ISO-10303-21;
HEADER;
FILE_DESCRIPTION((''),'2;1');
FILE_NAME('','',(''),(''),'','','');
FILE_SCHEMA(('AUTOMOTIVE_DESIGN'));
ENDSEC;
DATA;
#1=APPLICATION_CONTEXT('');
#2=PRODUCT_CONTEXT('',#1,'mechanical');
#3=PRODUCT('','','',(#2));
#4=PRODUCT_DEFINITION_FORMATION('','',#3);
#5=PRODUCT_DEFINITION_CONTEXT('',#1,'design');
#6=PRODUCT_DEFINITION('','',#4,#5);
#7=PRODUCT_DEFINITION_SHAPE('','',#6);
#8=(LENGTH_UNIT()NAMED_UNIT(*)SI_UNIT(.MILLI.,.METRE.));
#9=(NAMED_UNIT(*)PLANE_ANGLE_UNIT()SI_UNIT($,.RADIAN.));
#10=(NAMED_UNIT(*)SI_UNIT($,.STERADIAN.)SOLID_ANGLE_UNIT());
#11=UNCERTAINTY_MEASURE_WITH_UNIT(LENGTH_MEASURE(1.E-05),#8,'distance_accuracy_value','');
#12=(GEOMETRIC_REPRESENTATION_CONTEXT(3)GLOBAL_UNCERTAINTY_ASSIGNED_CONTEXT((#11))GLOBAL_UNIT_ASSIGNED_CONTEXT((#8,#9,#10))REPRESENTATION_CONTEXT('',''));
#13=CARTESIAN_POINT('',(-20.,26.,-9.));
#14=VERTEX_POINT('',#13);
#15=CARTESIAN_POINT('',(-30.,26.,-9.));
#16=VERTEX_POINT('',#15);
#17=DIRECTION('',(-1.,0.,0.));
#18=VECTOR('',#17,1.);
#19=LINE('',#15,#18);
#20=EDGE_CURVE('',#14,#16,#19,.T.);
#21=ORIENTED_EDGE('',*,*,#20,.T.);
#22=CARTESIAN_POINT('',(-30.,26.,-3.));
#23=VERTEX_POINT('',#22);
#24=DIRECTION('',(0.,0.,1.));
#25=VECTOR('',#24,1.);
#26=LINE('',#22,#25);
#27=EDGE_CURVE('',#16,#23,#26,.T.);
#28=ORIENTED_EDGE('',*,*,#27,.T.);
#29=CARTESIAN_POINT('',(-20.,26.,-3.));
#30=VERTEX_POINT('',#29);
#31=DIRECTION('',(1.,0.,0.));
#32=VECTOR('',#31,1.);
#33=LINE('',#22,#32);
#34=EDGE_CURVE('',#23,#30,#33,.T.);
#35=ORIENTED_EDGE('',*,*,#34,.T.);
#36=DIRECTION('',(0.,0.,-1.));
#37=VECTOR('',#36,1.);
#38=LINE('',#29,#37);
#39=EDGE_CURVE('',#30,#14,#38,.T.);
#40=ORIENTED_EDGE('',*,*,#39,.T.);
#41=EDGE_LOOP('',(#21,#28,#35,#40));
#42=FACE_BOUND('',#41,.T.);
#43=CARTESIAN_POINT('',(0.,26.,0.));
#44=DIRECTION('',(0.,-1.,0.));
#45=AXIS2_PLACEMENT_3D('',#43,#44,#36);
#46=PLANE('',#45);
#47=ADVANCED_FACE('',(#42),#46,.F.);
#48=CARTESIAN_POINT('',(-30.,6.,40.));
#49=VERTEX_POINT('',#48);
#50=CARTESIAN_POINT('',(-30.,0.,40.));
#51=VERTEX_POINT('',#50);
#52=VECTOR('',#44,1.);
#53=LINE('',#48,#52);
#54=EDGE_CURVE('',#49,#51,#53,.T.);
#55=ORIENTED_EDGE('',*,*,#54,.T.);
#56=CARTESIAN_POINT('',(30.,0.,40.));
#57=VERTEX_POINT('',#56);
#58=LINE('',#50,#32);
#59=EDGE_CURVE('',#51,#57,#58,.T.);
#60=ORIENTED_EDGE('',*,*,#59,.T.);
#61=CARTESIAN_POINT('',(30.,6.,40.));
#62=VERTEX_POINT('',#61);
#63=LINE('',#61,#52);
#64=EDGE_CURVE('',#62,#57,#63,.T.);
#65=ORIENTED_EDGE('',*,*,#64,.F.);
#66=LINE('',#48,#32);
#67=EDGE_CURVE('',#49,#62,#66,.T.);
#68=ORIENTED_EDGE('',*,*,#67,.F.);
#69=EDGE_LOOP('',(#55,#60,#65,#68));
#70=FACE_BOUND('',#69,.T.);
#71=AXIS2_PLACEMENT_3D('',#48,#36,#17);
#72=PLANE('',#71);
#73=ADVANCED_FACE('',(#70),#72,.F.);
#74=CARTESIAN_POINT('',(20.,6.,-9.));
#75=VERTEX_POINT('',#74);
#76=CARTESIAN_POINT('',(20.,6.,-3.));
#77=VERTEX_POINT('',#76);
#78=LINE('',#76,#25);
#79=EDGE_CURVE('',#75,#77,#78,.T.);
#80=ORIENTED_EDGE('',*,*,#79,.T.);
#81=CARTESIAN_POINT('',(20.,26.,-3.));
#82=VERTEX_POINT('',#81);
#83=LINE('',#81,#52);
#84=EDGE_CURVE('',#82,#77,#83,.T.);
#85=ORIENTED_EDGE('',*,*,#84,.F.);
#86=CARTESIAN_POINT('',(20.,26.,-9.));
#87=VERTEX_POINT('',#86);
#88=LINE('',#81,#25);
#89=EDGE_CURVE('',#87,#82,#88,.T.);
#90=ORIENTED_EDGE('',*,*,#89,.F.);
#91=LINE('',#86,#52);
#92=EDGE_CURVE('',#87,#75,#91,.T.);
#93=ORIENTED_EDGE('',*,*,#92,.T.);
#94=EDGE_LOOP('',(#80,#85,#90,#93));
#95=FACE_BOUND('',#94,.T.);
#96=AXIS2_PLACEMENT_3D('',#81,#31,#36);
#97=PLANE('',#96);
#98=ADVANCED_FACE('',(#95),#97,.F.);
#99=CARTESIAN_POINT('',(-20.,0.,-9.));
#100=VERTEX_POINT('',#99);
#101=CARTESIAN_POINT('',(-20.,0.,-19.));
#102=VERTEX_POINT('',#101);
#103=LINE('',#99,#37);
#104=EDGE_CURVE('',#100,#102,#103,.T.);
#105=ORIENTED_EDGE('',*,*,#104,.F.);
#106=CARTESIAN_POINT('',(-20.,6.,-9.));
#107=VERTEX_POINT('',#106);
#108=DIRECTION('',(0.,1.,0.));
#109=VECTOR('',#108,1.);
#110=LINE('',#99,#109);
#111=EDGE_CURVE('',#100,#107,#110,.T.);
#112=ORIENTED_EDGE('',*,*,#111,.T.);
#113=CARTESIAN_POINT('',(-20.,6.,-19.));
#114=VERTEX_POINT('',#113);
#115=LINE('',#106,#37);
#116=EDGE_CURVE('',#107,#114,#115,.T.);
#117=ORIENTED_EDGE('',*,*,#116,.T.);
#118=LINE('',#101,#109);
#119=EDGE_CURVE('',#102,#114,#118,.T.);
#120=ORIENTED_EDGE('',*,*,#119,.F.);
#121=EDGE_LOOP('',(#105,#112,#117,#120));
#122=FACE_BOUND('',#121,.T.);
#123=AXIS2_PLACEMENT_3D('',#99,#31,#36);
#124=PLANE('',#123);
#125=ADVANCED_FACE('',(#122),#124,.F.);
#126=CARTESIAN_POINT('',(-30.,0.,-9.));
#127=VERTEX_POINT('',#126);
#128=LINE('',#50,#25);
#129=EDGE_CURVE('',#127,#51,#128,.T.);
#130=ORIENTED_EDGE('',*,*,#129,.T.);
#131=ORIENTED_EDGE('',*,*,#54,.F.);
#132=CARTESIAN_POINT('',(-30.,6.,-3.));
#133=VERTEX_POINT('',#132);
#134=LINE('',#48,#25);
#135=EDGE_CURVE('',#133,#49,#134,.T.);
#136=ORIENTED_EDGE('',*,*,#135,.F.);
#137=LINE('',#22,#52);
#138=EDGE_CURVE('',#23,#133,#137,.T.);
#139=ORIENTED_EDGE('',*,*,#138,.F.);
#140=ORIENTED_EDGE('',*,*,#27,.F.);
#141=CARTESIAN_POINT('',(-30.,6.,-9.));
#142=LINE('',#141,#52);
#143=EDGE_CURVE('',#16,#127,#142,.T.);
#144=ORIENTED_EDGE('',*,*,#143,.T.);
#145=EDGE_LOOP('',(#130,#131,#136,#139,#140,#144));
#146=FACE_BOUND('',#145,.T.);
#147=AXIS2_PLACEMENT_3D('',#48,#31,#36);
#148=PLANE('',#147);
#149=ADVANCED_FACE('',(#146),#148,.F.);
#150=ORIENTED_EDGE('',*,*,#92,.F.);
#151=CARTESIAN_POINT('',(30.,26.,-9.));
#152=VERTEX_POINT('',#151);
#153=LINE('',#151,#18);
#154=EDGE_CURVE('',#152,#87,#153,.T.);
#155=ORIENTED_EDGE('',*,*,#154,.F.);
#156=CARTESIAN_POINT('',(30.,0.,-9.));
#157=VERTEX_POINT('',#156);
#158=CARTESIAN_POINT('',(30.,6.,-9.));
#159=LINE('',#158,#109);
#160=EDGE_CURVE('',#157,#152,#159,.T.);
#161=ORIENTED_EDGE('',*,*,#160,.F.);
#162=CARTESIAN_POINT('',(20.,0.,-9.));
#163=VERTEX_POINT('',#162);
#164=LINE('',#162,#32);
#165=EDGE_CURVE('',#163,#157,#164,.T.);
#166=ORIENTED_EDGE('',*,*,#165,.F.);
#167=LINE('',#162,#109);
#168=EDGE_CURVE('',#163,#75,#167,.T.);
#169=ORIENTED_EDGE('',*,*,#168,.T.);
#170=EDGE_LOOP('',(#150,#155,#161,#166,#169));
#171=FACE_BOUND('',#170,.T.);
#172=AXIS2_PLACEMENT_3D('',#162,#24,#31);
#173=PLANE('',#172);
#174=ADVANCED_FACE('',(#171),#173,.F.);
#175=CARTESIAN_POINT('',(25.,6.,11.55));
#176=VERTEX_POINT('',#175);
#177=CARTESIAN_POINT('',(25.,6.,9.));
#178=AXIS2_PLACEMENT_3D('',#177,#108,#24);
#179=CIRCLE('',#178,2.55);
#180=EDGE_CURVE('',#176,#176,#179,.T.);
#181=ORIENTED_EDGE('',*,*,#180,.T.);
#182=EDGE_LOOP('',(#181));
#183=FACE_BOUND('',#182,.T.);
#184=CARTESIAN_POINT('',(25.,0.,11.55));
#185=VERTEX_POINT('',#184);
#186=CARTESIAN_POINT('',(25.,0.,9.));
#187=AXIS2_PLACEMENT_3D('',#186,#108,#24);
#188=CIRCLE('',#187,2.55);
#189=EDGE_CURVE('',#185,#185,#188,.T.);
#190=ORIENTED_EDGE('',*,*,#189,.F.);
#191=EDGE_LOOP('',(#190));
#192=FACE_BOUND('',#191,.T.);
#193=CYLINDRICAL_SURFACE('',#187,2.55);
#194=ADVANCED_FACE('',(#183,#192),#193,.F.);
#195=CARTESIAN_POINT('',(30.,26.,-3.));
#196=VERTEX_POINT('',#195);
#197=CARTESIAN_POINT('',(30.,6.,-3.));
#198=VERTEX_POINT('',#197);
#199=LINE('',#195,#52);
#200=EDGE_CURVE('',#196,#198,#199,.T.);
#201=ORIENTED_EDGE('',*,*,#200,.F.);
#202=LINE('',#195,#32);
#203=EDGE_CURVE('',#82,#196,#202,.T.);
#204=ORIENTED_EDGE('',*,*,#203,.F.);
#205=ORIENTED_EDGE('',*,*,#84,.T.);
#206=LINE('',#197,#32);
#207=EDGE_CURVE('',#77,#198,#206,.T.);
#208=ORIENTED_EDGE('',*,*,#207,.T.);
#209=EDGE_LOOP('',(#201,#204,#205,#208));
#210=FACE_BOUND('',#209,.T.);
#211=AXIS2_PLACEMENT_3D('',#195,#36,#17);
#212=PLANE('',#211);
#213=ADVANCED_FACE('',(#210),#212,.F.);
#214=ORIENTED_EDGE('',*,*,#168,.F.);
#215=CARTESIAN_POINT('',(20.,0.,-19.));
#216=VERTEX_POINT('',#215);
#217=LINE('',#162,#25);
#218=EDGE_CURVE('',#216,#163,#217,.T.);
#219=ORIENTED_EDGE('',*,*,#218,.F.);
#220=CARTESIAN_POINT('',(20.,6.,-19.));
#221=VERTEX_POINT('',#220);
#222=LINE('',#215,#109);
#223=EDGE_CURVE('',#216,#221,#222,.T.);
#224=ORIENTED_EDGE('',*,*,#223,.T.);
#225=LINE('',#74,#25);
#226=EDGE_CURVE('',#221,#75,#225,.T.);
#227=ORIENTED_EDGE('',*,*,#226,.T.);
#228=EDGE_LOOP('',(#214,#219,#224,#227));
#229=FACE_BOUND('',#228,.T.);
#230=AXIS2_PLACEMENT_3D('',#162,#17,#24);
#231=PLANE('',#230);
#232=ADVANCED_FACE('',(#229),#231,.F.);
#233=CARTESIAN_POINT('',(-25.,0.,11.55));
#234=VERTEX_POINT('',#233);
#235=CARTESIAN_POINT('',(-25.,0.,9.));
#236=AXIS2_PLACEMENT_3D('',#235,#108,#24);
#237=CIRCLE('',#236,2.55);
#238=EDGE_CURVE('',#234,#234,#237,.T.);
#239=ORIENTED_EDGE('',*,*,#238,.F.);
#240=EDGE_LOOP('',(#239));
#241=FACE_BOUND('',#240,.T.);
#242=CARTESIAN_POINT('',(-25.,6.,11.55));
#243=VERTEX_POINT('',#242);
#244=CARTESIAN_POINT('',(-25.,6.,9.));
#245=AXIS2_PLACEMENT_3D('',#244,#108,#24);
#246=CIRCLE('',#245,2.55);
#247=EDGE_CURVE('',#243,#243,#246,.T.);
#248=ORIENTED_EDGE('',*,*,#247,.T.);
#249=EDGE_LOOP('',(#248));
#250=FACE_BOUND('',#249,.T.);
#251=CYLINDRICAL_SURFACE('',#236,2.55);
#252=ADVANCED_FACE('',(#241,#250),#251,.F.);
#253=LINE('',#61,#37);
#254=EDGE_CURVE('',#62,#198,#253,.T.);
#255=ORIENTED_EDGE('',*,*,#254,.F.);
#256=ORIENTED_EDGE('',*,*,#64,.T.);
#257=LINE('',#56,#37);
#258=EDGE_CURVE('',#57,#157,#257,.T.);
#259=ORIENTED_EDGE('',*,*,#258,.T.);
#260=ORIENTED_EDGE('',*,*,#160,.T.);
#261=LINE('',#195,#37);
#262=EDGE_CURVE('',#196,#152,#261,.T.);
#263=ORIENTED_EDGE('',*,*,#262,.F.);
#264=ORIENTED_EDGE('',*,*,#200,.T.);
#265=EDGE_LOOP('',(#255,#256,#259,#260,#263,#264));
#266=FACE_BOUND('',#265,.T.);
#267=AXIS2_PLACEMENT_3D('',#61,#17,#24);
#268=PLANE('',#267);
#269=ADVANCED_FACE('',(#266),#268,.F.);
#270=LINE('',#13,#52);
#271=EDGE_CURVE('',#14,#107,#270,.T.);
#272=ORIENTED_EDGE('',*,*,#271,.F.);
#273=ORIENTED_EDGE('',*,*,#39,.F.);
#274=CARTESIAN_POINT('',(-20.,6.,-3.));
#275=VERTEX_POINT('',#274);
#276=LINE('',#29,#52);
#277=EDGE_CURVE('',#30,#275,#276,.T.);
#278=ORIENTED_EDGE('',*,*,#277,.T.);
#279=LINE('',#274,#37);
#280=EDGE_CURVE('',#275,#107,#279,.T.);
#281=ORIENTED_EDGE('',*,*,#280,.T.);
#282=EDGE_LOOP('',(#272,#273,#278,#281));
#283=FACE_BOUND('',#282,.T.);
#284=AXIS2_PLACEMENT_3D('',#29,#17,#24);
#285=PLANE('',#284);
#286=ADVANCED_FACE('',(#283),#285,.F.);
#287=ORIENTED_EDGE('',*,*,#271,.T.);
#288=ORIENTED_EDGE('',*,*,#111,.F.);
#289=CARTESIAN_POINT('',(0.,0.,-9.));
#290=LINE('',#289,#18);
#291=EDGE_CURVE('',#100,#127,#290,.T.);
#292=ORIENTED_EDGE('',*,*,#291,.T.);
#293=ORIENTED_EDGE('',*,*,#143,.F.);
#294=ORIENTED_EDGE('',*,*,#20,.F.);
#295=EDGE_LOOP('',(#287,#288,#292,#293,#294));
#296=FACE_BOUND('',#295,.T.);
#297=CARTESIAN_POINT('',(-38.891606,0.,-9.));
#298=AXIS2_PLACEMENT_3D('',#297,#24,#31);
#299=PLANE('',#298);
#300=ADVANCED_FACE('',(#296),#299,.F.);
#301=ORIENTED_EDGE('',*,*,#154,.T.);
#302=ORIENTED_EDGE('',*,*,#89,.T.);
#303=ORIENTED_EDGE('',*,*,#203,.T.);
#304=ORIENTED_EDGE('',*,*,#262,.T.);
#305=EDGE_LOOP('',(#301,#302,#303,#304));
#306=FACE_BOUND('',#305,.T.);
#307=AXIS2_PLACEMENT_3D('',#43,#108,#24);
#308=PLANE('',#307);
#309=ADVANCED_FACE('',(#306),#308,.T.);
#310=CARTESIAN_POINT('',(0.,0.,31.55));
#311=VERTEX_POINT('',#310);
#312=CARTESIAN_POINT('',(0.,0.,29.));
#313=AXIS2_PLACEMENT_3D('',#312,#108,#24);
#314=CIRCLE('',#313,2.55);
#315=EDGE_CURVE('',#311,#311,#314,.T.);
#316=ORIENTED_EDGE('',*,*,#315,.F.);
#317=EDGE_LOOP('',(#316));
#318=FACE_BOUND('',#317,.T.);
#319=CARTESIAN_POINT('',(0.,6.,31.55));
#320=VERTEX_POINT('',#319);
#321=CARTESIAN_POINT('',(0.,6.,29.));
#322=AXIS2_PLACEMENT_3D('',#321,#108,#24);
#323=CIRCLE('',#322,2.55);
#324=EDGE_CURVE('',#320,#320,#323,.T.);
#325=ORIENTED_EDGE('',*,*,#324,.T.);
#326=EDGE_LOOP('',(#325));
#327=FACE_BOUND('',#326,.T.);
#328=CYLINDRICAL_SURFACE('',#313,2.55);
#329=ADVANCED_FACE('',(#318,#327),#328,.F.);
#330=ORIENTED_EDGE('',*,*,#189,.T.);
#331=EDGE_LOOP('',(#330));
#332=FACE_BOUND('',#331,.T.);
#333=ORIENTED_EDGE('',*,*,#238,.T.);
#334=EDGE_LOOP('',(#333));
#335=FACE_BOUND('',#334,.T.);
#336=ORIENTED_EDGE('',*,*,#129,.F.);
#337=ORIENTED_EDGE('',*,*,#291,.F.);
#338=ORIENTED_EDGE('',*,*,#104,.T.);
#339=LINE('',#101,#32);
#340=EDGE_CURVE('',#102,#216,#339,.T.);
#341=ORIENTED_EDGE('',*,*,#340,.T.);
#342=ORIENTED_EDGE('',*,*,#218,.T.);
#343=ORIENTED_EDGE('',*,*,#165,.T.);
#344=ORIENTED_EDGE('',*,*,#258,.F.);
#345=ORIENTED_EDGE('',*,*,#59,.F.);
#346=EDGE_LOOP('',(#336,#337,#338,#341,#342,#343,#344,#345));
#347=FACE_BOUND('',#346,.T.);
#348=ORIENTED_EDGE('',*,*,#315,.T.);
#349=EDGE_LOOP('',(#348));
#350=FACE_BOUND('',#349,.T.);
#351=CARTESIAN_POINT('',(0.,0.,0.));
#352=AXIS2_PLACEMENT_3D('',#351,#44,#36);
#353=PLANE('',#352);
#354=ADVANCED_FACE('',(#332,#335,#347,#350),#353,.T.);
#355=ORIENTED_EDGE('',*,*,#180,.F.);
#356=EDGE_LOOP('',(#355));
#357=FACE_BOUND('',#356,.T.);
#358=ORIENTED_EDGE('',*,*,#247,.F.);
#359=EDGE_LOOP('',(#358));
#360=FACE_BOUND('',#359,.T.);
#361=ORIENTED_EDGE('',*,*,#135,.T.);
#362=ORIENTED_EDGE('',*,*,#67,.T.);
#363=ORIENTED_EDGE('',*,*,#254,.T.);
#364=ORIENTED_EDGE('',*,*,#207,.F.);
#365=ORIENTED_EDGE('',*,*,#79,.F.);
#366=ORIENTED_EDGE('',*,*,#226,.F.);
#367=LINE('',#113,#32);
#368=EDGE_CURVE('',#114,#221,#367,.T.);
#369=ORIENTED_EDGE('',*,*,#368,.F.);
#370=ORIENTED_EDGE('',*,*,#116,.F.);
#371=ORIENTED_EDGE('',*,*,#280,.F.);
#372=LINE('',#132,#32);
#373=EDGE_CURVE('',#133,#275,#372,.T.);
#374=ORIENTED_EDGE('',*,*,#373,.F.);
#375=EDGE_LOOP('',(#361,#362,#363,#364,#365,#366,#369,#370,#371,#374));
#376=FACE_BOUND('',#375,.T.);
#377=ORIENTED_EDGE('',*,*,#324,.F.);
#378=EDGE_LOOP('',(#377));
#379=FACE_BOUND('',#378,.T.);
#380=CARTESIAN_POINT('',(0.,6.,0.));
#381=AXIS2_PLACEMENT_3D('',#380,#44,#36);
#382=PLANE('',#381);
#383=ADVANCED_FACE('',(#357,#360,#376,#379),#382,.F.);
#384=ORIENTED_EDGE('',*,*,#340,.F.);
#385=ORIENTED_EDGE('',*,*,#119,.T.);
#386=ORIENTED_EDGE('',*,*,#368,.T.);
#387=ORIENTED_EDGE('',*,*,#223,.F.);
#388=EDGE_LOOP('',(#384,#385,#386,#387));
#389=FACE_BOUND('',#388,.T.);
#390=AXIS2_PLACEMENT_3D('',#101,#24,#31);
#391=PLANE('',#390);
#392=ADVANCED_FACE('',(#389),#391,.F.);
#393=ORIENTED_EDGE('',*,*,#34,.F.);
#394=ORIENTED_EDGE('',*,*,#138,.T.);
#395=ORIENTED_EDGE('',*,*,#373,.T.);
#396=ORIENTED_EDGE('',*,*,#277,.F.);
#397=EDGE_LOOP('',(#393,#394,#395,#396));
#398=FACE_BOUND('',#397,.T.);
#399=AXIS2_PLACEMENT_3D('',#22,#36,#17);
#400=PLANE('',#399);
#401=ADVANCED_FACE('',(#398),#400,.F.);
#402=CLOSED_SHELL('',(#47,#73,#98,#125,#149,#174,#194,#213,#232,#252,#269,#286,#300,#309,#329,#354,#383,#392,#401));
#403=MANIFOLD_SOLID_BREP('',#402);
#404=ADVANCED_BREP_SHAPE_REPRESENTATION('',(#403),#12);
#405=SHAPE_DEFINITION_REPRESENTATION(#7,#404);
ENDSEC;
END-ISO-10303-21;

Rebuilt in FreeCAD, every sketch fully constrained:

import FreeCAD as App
import Part
import Sketcher
from FreeCAD import Vector
Q = App.Units.Quantity

doc = App.newDocument("Part")
body = doc.addObject("PartDesign::Body", "Body")

sketch1 = body.newObject("Sketcher::SketchObject", "Sketch")
sketch1.AttachmentSupport = (doc.getObject("XZ_Plane"), [""])
sketch1.MapMode = "FlatFace"
sketch1.addGeometry(Part.LineSegment(Vector(-30, -40, 0), Vector(-30, 40, 0)), False)
sketch1.addGeometry(Part.LineSegment(Vector(-30, 40, 0), Vector(30, 40, 0)), False)
sketch1.addGeometry(Part.LineSegment(Vector(30, 40, 0), Vector(30, -40, 0)), False)
sketch1.addGeometry(Part.LineSegment(Vector(30, -40, 0), Vector(-30, -40, 0)), False)
sketch1.addConstraint(Sketcher.Constraint("Coincident", 0, 2, 1, 1))
sketch1.addConstraint(Sketcher.Constraint("Coincident", 1, 2, 2, 1))
sketch1.addConstraint(Sketcher.Constraint("Coincident", 2, 2, 3, 1))
sketch1.addConstraint(Sketcher.Constraint("Coincident", 3, 2, 0, 1))
sketch1.addConstraint(Sketcher.Constraint("Vertical", 0))
sketch1.addConstraint(Sketcher.Constraint("Horizontal", 1))
sketch1.addConstraint(Sketcher.Constraint("Vertical", 2))
sketch1.addConstraint(Sketcher.Constraint("Horizontal", 3))
sketch1.addConstraint(Sketcher.Constraint("Symmetric", 0, 2, 2, 2, -1, 1))
sketch1.addConstraint(Sketcher.Constraint("DistanceX", 1, 1, 1, 2, Q("60 mm")))
sketch1.addConstraint(Sketcher.Constraint("DistanceY", 0, 1, 0, 2, Q("80 mm")))
pad1 = body.newObject("PartDesign::Pad", "Pad")
pad1.Profile = sketch1
pad1.Length = 6
pad1.Reversed = True

sketch2 = body.newObject("Sketcher::SketchObject", "Sketch001")
sketch2.AttachmentSupport = (doc.getObject("XZ_Plane"), [""])
sketch2.MapMode = "FlatFace"
sketch2.AttachmentOffset = App.Placement(Vector(0, 0, -6), App.Rotation())
sketch2.addGeometry(Part.Circle(Vector(25, 9, 0), Vector(0, 0, 1), 2.5), False)
sketch2.addGeometry(Part.Circle(Vector(-25, 9, 0), Vector(0, 0, 1), 2.5), False)
sketch2.addGeometry(Part.Circle(Vector(0, 29, 0), Vector(0, 0, 1), 2.5), False)
sketch2.addGeometry(Part.LineSegment(Vector(-38.9, -9, 0), Vector(-20, -9, 0)), False)
sketch2.addGeometry(Part.LineSegment(Vector(-20, -9, 0), Vector(-20, -19, 0)), False)
sketch2.addGeometry(Part.LineSegment(Vector(-20, -19, 0), Vector(20, -19, 0)), False)
sketch2.addGeometry(Part.LineSegment(Vector(20, -19, 0), Vector(20, -9, 0)), False)
sketch2.addGeometry(Part.LineSegment(Vector(20, -9, 0), Vector(37.9, -9, 0)), False)
sketch2.addGeometry(Part.LineSegment(Vector(37.9, -9, 0), Vector(37.9, -57.3, 0)), False)
sketch2.addGeometry(Part.LineSegment(Vector(37.9, -57.3, 0), Vector(-38.9, -57.3, 0)), False)
sketch2.addGeometry(Part.LineSegment(Vector(-38.9, -57.3, 0), Vector(-38.9, -9, 0)), False)
sketch2.addConstraint(Sketcher.Constraint("Coincident", 3, 2, 4, 1))
sketch2.addConstraint(Sketcher.Constraint("Coincident", 4, 2, 5, 1))
sketch2.addConstraint(Sketcher.Constraint("Coincident", 5, 2, 6, 1))
sketch2.addConstraint(Sketcher.Constraint("Coincident", 6, 2, 7, 1))
sketch2.addConstraint(Sketcher.Constraint("Coincident", 7, 2, 8, 1))
sketch2.addConstraint(Sketcher.Constraint("Coincident", 8, 2, 9, 1))
sketch2.addConstraint(Sketcher.Constraint("Coincident", 9, 2, 10, 1))
sketch2.addConstraint(Sketcher.Constraint("Coincident", 10, 2, 3, 1))
sketch2.addConstraint(Sketcher.Constraint("Horizontal", 3))
sketch2.addConstraint(Sketcher.Constraint("Vertical", 4))
sketch2.addConstraint(Sketcher.Constraint("Horizontal", 5))
sketch2.addConstraint(Sketcher.Constraint("Vertical", 6))
sketch2.addConstraint(Sketcher.Constraint("Horizontal", 7))
sketch2.addConstraint(Sketcher.Constraint("Vertical", 8))
sketch2.addConstraint(Sketcher.Constraint("Horizontal", 9))
sketch2.addConstraint(Sketcher.Constraint("Vertical", 10))
sketch2.addConstraint(Sketcher.Constraint("Equal", 0, 1))
sketch2.addConstraint(Sketcher.Constraint("Equal", 1, 2))
sketch2.addConstraint(Sketcher.Constraint("Symmetric", 0, 3, 1, 3, -2))
sketch2.addConstraint(Sketcher.Constraint("Symmetric", 3, 2, 6, 2, -2))
sketch2.addConstraint(Sketcher.Constraint("PointOnObject", 2, 3, -2))
sketch2.addConstraint(Sketcher.Constraint("Diameter", 0, Q("5.1 mm")))
sketch2.addConstraint(Sketcher.Constraint("DistanceX", 5, 1, 5, 2, Q("40 mm")))
sketch2.addConstraint(Sketcher.Constraint("DistanceY", 4, 2, 4, 1, Q("10 mm")))
sketch2.addConstraint(Sketcher.Constraint("DistanceX", -1, 1, 0, 3, Q("25 mm")))
sketch2.addConstraint(Sketcher.Constraint("DistanceY", -1, 1, 0, 3, Q("9 mm")))
sketch2.addConstraint(Sketcher.Constraint("DistanceY", -1, 1, 2, 3, Q("29 mm")))
sketch2.addConstraint(Sketcher.Constraint("DistanceY", 3, 2, -1, 1, Q("9 mm")))
sketch2.addConstraint(Sketcher.Constraint("DistanceX", 7, 1, 7, 2, Q("17.945142 mm")))
sketch2.addConstraint(Sketcher.Constraint("DistanceX", 3, 1, 3, 2, Q("18.891606 mm")))
sketch2.addConstraint(Sketcher.Constraint("DistanceY", 8, 2, 8, 1, Q("48.336723 mm")))
pocket1 = body.newObject("PartDesign::Pocket", "Pocket")
pocket1.Profile = sketch2
pocket1.Type = "ThroughAll"
pocket1.Reversed = True

sketch3 = body.newObject("Sketcher::SketchObject", "Sketch002")
sketch3.AttachmentSupport = (doc.getObject("XZ_Plane"), [""])
sketch3.MapMode = "FlatFace"
sketch3.AttachmentOffset = App.Placement(Vector(0, 0, -6), App.Rotation())
sketch3.addGeometry(Part.LineSegment(Vector(20, -9, 0), Vector(20, -3, 0)), False)
sketch3.addGeometry(Part.LineSegment(Vector(20, -3, 0), Vector(30, -3, 0)), False)
sketch3.addGeometry(Part.LineSegment(Vector(30, -3, 0), Vector(30, -9, 0)), False)
sketch3.addGeometry(Part.LineSegment(Vector(30, -9, 0), Vector(20, -9, 0)), False)
sketch3.addGeometry(Part.LineSegment(Vector(-30, -9, 0), Vector(-30, -3, 0)), False)
sketch3.addGeometry(Part.LineSegment(Vector(-30, -3, 0), Vector(-20, -3, 0)), False)
sketch3.addGeometry(Part.LineSegment(Vector(-20, -3, 0), Vector(-20, -9, 0)), False)
sketch3.addGeometry(Part.LineSegment(Vector(-20, -9, 0), Vector(-30, -9, 0)), False)
sketch3.addConstraint(Sketcher.Constraint("Coincident", 0, 2, 1, 1))
sketch3.addConstraint(Sketcher.Constraint("Coincident", 1, 2, 2, 1))
sketch3.addConstraint(Sketcher.Constraint("Coincident", 2, 2, 3, 1))
sketch3.addConstraint(Sketcher.Constraint("Coincident", 3, 2, 0, 1))
sketch3.addConstraint(Sketcher.Constraint("Coincident", 4, 2, 5, 1))
sketch3.addConstraint(Sketcher.Constraint("Coincident", 5, 2, 6, 1))
sketch3.addConstraint(Sketcher.Constraint("Coincident", 6, 2, 7, 1))
sketch3.addConstraint(Sketcher.Constraint("Coincident", 7, 2, 4, 1))
sketch3.addConstraint(Sketcher.Constraint("Vertical", 0))
sketch3.addConstraint(Sketcher.Constraint("Horizontal", 1))
sketch3.addConstraint(Sketcher.Constraint("Vertical", 2))
sketch3.addConstraint(Sketcher.Constraint("Horizontal", 3))
sketch3.addConstraint(Sketcher.Constraint("Vertical", 4))
sketch3.addConstraint(Sketcher.Constraint("Horizontal", 5))
sketch3.addConstraint(Sketcher.Constraint("Vertical", 6))
sketch3.addConstraint(Sketcher.Constraint("Horizontal", 7))
sketch3.addConstraint(Sketcher.Constraint("Symmetric", 1, 2, 4, 2, -2))
sketch3.addConstraint(Sketcher.Constraint("Symmetric", 3, 2, 6, 2, -2))
sketch3.addConstraint(Sketcher.Constraint("DistanceX", 1, 1, 1, 2, Q("10 mm")))
sketch3.addConstraint(Sketcher.Constraint("DistanceY", 0, 1, 0, 2, Q("6 mm")))
sketch3.addConstraint(Sketcher.Constraint("DistanceX", -1, 1, 0, 2, Q("20 mm")))
sketch3.addConstraint(Sketcher.Constraint("DistanceY", 0, 2, -1, 1, Q("3 mm")))
pad2 = body.newObject("PartDesign::Pad", "Pad001")
pad2.Profile = sketch3
pad2.Length = 20
pad2.Reversed = True

doc.recompute()
